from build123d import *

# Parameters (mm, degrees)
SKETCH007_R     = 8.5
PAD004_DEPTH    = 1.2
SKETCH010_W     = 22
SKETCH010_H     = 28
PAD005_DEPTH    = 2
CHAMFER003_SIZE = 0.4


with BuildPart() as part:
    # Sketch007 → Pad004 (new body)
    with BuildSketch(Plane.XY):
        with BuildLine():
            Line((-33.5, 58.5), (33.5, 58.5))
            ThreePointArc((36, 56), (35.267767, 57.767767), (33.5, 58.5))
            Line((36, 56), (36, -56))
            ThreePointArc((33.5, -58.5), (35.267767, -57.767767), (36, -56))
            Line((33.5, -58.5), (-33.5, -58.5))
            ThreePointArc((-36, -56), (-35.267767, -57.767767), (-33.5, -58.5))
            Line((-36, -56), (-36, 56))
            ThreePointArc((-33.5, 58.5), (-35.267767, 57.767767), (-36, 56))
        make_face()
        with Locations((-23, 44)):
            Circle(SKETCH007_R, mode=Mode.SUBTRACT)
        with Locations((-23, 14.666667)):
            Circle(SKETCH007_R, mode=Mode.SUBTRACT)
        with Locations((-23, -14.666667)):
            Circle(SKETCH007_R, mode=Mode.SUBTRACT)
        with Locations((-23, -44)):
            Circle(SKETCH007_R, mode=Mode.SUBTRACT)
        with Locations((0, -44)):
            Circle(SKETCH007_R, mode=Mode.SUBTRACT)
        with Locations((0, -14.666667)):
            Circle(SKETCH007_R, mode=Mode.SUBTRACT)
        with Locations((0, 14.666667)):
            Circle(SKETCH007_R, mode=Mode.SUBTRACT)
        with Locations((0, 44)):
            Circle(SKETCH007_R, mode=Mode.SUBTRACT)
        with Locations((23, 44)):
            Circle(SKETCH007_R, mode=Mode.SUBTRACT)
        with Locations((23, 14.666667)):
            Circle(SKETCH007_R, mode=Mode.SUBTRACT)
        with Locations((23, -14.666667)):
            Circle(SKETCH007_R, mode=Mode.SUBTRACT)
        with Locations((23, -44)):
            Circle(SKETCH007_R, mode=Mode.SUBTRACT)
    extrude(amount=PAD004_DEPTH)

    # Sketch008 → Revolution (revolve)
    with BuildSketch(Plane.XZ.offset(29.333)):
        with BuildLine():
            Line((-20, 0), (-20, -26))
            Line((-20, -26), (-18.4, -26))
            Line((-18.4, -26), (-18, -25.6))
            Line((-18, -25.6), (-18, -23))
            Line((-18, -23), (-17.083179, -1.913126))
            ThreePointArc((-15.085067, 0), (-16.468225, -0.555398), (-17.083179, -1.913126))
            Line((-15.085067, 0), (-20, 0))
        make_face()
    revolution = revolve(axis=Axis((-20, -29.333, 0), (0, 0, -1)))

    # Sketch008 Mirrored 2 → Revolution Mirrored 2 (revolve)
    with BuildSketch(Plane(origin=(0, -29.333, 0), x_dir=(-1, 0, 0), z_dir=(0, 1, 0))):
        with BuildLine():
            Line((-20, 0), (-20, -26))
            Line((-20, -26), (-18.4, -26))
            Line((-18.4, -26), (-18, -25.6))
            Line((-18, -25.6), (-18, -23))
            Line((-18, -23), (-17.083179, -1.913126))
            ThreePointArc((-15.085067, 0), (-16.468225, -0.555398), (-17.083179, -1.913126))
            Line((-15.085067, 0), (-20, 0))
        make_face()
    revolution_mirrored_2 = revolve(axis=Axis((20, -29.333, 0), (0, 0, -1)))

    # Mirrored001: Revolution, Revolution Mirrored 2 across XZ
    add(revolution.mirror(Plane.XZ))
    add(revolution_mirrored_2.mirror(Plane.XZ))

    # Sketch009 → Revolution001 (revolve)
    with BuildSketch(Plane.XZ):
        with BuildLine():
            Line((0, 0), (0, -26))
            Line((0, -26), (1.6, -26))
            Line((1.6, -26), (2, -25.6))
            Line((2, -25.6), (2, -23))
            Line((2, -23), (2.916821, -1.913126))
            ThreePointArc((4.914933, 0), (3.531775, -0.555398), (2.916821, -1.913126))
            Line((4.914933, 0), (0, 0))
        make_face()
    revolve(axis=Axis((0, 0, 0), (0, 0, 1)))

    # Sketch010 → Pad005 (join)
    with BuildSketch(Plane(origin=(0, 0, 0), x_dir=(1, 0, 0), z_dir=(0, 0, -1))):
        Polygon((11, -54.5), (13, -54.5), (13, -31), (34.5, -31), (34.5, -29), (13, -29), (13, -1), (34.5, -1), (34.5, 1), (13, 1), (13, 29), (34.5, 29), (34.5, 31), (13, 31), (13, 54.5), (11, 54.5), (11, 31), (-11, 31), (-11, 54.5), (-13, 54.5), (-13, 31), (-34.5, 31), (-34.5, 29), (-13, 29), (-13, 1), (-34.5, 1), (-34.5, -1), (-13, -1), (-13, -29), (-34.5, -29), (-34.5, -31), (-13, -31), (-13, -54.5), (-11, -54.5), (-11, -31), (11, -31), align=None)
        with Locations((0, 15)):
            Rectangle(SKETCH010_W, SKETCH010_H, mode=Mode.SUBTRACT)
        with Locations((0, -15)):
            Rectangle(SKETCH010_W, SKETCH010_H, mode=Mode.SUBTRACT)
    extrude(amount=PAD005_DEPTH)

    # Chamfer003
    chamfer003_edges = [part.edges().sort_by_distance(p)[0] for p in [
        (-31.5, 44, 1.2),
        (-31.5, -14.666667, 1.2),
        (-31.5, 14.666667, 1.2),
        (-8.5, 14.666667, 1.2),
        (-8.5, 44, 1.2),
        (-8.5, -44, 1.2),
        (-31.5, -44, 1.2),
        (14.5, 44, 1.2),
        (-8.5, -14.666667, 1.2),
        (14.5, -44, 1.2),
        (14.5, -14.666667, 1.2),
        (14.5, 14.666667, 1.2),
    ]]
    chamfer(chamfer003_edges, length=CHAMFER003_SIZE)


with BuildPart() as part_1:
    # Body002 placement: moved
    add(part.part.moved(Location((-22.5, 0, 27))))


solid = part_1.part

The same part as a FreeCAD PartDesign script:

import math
import FreeCAD as App
import Part
import Sketcher

V = App.Vector
Q = App.Units.Quantity


def edges_at(feature, points):
    """Names of the edges that pass closest to the given points."""
    edges = feature.Shape.Edges
    near = lambda p: min(range(len(edges)), key=lambda i: edges[i].distToShape(Part.Vertex(*p))[0])
    return sorted({f"Edge{near(p) + 1}" for p in points})


def add_polygon(sketch, points):
    """Adds a closed chain of lines whose ends are joined by coincident constraints."""
    first, n = sketch.GeometryCount, len(points)
    for a, b in zip(points, points[1:] + points[:1]):
        sketch.addGeometry(Part.LineSegment(App.Vector(*a, 0), App.Vector(*b, 0)), False)
    for i in range(n):
        sketch.addConstraint(Sketcher.Constraint("Coincident", first + i, 2, first + (i + 1) % n, 1))

doc = App.newDocument("Part")
body = doc.addObject("PartDesign::Body", "Body")

sketch1 = body.newObject("Sketcher::SketchObject", "Sketch")
sketch1.AttachmentSupport = (doc.getObject("XY_Plane"), [""])
sketch1.MapMode = "FlatFace"
sketch1.addGeometry(Part.LineSegment(V(33.5, 58.5, 0), V(-33.5, 58.5, 0)), False)
sketch1.addGeometry(Part.ArcOfCircle(Part.Circle(V(-33.5, 56, 0), V(0, 0, 1), 2.5), math.radians(90), math.radians(180)), False)
sketch1.addGeometry(Part.LineSegment(V(-36, 56, 0), V(-36, -56, 0)), False)
sketch1.addGeometry(Part.ArcOfCircle(Part.Circle(V(-33.5, -56, 0), V(0, 0, 1), 2.5), math.radians(180), math.radians(270)), False)
sketch1.addGeometry(Part.LineSegment(V(-33.5, -58.5, 0), V(33.5, -58.5, 0)), False)
sketch1.addGeometry(Part.ArcOfCircle(Part.Circle(V(33.5, -56, 0), V(0, 0, 1), 2.5), math.radians(-90), math.radians(0)), False)
sketch1.addGeometry(Part.LineSegment(V(36, -56, 0), V(36, 56, 0)), False)
sketch1.addGeometry(Part.ArcOfCircle(Part.Circle(V(33.5, 56, 0), V(0, 0, 1), 2.5), math.radians(0), math.radians(90)), False)
sketch1.addGeometry(Part.Circle(V(23, -44, 0), V(0, 0, 1), 8.5), False)
sketch1.addGeometry(Part.Circle(V(23, -14.7, 0), V(0, 0, 1), 8.5), False)
sketch1.addGeometry(Part.Circle(V(0, -44, 0), V(0, 0, 1), 8.5), False)
sketch1.addGeometry(Part.Circle(V(-23, -44, 0), V(0, 0, 1), 8.5), False)
sketch1.addGeometry(Part.Circle(V(0, -14.7, 0), V(0, 0, 1), 8.5), False)
sketch1.addGeometry(Part.Circle(V(-23, -14.7, 0), V(0, 0, 1), 8.5), False)
sketch1.addGeometry(Part.Circle(V(23, 14.7, 0), V(0, 0, 1), 8.5), False)
sketch1.addGeometry(Part.Circle(V(23, 44, 0), V(0, 0, 1), 8.5), False)
sketch1.addGeometry(Part.Circle(V(0, 14.7, 0), V(0, 0, 1), 8.5), False)
sketch1.addGeometry(Part.Circle(V(-23, 14.7, 0), V(0, 0, 1), 8.5), False)
sketch1.addGeometry(Part.Circle(V(0, 44, 0), V(0, 0, 1), 8.5), False)
sketch1.addGeometry(Part.Circle(V(-23, 44, 0), V(0, 0, 1), 8.5), False)
sketch1.addConstraint(Sketcher.Constraint("Tangent", 0, 2, 1, 1))
sketch1.addConstraint(Sketcher.Constraint("Tangent", 1, 2, 2, 1))
sketch1.addConstraint(Sketcher.Constraint("Tangent", 2, 2, 3, 1))
sketch1.addConstraint(Sketcher.Constraint("Tangent", 3, 2, 4, 1))
sketch1.addConstraint(Sketcher.Constraint("Tangent", 4, 2, 5, 1))
sketch1.addConstraint(Sketcher.Constraint("Tangent", 5, 2, 6, 1))
sketch1.addConstraint(Sketcher.Constraint("Tangent", 6, 2, 7, 1))
sketch1.addConstraint(Sketcher.Constraint("Tangent", 7, 2, 0, 1))
sketch1.addConstraint(Sketcher.Constraint("Horizontal", 0))
sketch1.addConstraint(Sketcher.Constraint("Vertical", 2))
sketch1.addConstraint(Sketcher.Constraint("Horizontal", 4))
sketch1.addConstraint(Sketcher.Constraint("Vertical", 6))
sketch1.addConstraint(Sketcher.Constraint("Equal", 1, 3))
sketch1.addConstraint(Sketcher.Constraint("Equal", 3, 5))
sketch1.addConstraint(Sketcher.Constraint("Equal", 5, 7))
sketch1.addConstraint(Sketcher.Constraint("Equal", 8, 9))
sketch1.addConstraint(Sketcher.Constraint("Equal", 9, 10))
sketch1.addConstraint(Sketcher.Constraint("Equal", 10, 11))
sketch1.addConstraint(Sketcher.Constraint("Equal", 11, 12))
sketch1.addConstraint(Sketcher.Constraint("Equal", 12, 13))
sketch1.addConstraint(Sketcher.Constraint("Equal", 13, 14))
sketch1.addConstraint(Sketcher.Constraint("Equal", 14, 15))
sketch1.addConstraint(Sketcher.Constraint("Equal", 15, 16))
sketch1.addConstraint(Sketcher.Constraint("Equal", 16, 17))
sketch1.addConstraint(Sketcher.Constraint("Equal", 17, 18))
sketch1.addConstraint(Sketcher.Constraint("Equal", 18, 19))
sketch1.addConstraint(Sketcher.Constraint("Symmetric", 1, 3, 5, 3, -1, 1))
sketch1.addConstraint(Sketcher.Constraint("Symmetric", 13, 3, 14, 3, -1, 1))
sketch1.addConstraint(Sketcher.Constraint("Symmetric", 11, 3, 15, 3, -1, 1))
sketch1.addConstraint(Sketcher.Constraint("Symmetric", 12, 3, 16, 3, -1, 1))
sketch1.addConstraint(Sketcher.Constraint("Symmetric", 9, 3, 17, 3, -1, 1))
sketch1.addConstraint(Sketcher.Constraint("Symmetric", 10, 3, 18, 3, -1, 1))
sketch1.addConstraint(Sketcher.Constraint("Symmetric", 8, 3, 19, 3, -1, 1))
sketch1.addConstraint(Sketcher.Constraint("Symmetric", 8, 3, 11, 3, -2))
sketch1.addConstraint(Sketcher.Constraint("Symmetric", 9, 3, 13, 3, -2))
sketch1.addConstraint(Sketcher.Constraint("PointOnObject", 10, 3, -2))
sketch1.addConstraint(Sketcher.Constraint("PointOnObject", 12, 3, -2))
sketch1.addConstraint(Sketcher.Constraint("Horizontal", 8, 3, 10, 3))
sketch1.addConstraint(Sketcher.Constraint("Horizontal", 9, 3, 12, 3))
sketch1.addConstraint(Sketcher.Constraint("Vertical", 8, 3, 9, 3))
sketch1.addConstraint(Sketcher.Constraint("Diameter", 8, 17.0))
sketch1.addConstraint(Sketcher.Constraint("Radius", 1, 2.5))
sketch1.addConstraint(Sketcher.Constraint("DistanceX", 0, 2, 0, 1, 67.0))
sketch1.addConstraint(Sketcher.Constraint("DistanceY", 2, 2, 2, 1, 112.0))
sketch1.addConstraint(Sketcher.Constraint("DistanceX", -1, 1, 8, 3, 23.0))
sketch1.addConstraint(Sketcher.Constraint("DistanceY", 8, 3, -1, 1, 44.0))
sketch1.addConstraint(Sketcher.Constraint("DistanceY", 9, 3, -1, 1, 14.666667))
pad1 = body.newObject("PartDesign::Pad", "Pad")
pad1.Profile = sketch1
pad1.Length = 1.2

sketch2 = body.newObject("Sketcher::SketchObject", "Sketch001")
sketch2.AttachmentSupport = (doc.getObject("XZ_Plane"), [""])
sketch2.MapMode = "FlatFace"
sketch2.AttachmentOffset = App.Placement(V(0, 0, 29.333), App.Rotation())
sketch2.addGeometry(Part.LineSegment(V(-20, 0, 0), V(-20, -26, 0)), False)
sketch2.addGeometry(Part.LineSegment(V(-20, -26, 0), V(-18.4, -26, 0)), False)
sketch2.addGeometry(Part.LineSegment(V(-18.4, -26, 0), V(-18, -25.6, 0)), False)
sketch2.addGeometry(Part.LineSegment(V(-18, -25.6, 0), V(-18, -23, 0)), False)
sketch2.addGeometry(Part.LineSegment(V(-18, -23, 0), V(-17.1, -1.9, 0)), False)
sketch2.addGeometry(Part.ArcOfCircle(Part.Circle(V(-15.1, -2, 0), V(0, 0, 1), 2), math.radians(90), math.radians(178)), False)
sketch2.addGeometry(Part.LineSegment(V(-15.1, 0, 0), V(-20, 0, 0)), False)
sketch2.addGeometry(Part.LineSegment(V(-20, 0, 0), V(-20, -26, 0)), True)
sketch2.addConstraint(Sketcher.Constraint("Coincident", 0, 2, 1, 1))
sketch2.addConstraint(Sketcher.Constraint("Coincident", 1, 2, 2, 1))
sketch2.addConstraint(Sketcher.Constraint("Coincident", 2, 2, 3, 1))
sketch2.addConstraint(Sketcher.Constraint("Coincident", 3, 2, 4, 1))
sketch2.addConstraint(Sketcher.Constraint("Tangent", 4, 2, 5, 2))
sketch2.addConstraint(Sketcher.Constraint("Tangent", 5, 1, 6, 1))
sketch2.addConstraint(Sketcher.Constraint("Coincident", 6, 2, 0, 1))
sketch2.addConstraint(Sketcher.Constraint("Vertical", 0))
sketch2.addConstraint(Sketcher.Constraint("Horizontal", 1))
sketch2.addConstraint(Sketcher.Constraint("Vertical", 3))
sketch2.addConstraint(Sketcher.Constraint("Horizontal", 6))
sketch2.addConstraint(Sketcher.Constraint("Vertical", 7))
sketch2.addConstraint(Sketcher.Constraint("Coincident", 7, 1, 6, 2))
sketch2.addConstraint(Sketcher.Constraint("PointOnObject", 5, 1, -1))
sketch2.addConstraint(Sketcher.Constraint("Horizontal", 1, 2, 7, 2))
sketch2.addConstraint(Sketcher.Constraint("Radius", 5, 1.999999))
sketch2.addConstraint(Sketcher.Constraint("DistanceY", 0, 2, 0, 1, 26.0))
sketch2.addConstraint(Sketcher.Constraint("Angle", 2, Q("45 deg")))
sketch2.addConstraint(Sketcher.Constraint("DistanceX", 1, 1, 1, 2, 1.6))
sketch2.addConstraint(Sketcher.Constraint("DistanceY", 3, 1, 3, 2, 2.6))
sketch2.addConstraint(Sketcher.Constraint("DistanceX", 0, 2, -1, 1, 20.0))
sketch2.addConstraint(Sketcher.Constraint("DistanceX", 2, 2, -1, 1, 18.0))
sketch2.addConstraint(Sketcher.Constraint("DistanceX", 6, 2, 6, 1, 4.914933))
revolution = body.newObject("PartDesign::Revolution", "Revolution")
revolution.Profile = sketch2
revolution.ReferenceAxis = (sketch2, ["Axis0"])
revolution.Angle = 360

sketch3 = body.newObject("Sketcher::SketchObject", "Sketch002")
sketch3.AttachmentSupport = (doc.getObject("XZ_Plane"), [""])
sketch3.MapMode = "FlatFace"
sketch3.AttachmentOffset = App.Placement(V(0, 0, 29.333), App.Rotation())
sketch3.addGeometry(Part.LineSegment(V(20, 0, 0), V(20, -26, 0)), False)
sketch3.addGeometry(Part.LineSegment(V(20, -26, 0), V(18.4, -26, 0)), False)
sketch3.addGeometry(Part.LineSegment(V(18.4, -26, 0), V(18, -25.6, 0)), False)
sketch3.addGeometry(Part.LineSegment(V(18, -25.6, 0), V(18, -23, 0)), False)
sketch3.addGeometry(Part.LineSegment(V(18, -23, 0), V(17.1, -1.9, 0)), False)
sketch3.addGeometry(Part.ArcOfCircle(Part.Circle(V(15.1, -2, 0), V(0, 0, 1), 2), math.radians(2), math.radians(90)), False)
sketch3.addGeometry(Part.LineSegment(V(15.1, 0, 0), V(20, 0, 0)), False)
sketch3.addGeometry(Part.LineSegment(V(20, 0, 0), V(20, -26, 0)), True)
sketch3.addConstraint(Sketcher.Constraint("Coincident", 0, 2, 1, 1))
sketch3.addConstraint(Sketcher.Constraint("Coincident", 1, 2, 2, 1))
sketch3.addConstraint(Sketcher.Constraint("Coincident", 2, 2, 3, 1))
sketch3.addConstraint(Sketcher.Constraint("Coincident", 3, 2, 4, 1))
sketch3.addConstraint(Sketcher.Constraint("Tangent", 4, 2, 5, 1))
sketch3.addConstraint(Sketcher.Constraint("Tangent", 5, 2, 6, 1))
sketch3.addConstraint(Sketcher.Constraint("Coincident", 6, 2, 0, 1))
sketch3.addConstraint(Sketcher.Constraint("Vertical", 0))
sketch3.addConstraint(Sketcher.Constraint("Horizontal", 1))
sketch3.addConstraint(Sketcher.Constraint("Vertical", 3))
sketch3.addConstraint(Sketcher.Constraint("Horizontal", 6))
sketch3.addConstraint(Sketcher.Constraint("Vertical", 7))
sketch3.addConstraint(Sketcher.Constraint("Coincident", 7, 1, 6, 2))
sketch3.addConstraint(Sketcher.Constraint("PointOnObject", 5, 2, -1))
sketch3.addConstraint(Sketcher.Constraint("Horizontal", 1, 2, 7, 2))
sketch3.addConstraint(Sketcher.Constraint("Radius", 5, 1.999999))
sketch3.addConstraint(Sketcher.Constraint("DistanceY", 0, 2, 0, 1, 26.0))
sketch3.addConstraint(Sketcher.Constraint("Angle", 2, Q("135 deg")))
sketch3.addConstraint(Sketcher.Constraint("DistanceX", 1, 2, 1, 1, 1.6))
sketch3.addConstraint(Sketcher.Constraint("DistanceY", 3, 1, 3, 2, 2.6))
sketch3.addConstraint(Sketcher.Constraint("DistanceX", -1, 1, 0, 2, 20.0))
sketch3.addConstraint(Sketcher.Constraint("DistanceX", -1, 1, 2, 2, 18.0))
sketch3.addConstraint(Sketcher.Constraint("DistanceX", 6, 1, 6, 2, 4.914933))
revolution2 = body.newObject("PartDesign::Revolution", "Revolution001")
revolution2.Profile = sketch3
revolution2.ReferenceAxis = (sketch3, ["Axis0"])
revolution2.Angle = 360
doc.recompute()

mirrored = body.newObject("PartDesign::Mirrored", "Mirrored")
mirrored.Originals = [revolution, revolution2]
mirrored.MirrorPlane = (doc.getObject("XZ_Plane"), [""])
body.Tip = mirrored

sketch4 = body.newObject("Sketcher::SketchObject", "Sketch003")
sketch4.AttachmentSupport = (doc.getObject("XZ_Plane"), [""])
sketch4.MapMode = "FlatFace"
sketch4.addGeometry(Part.LineSegment(V(0, 0, 0), V(0, -26, 0)), False)
sketch4.addGeometry(Part.LineSegment(V(0, -26, 0), V(1.6, -26, 0)), False)
sketch4.addGeometry(Part.LineSegment(V(1.6, -26, 0), V(2, -25.6, 0)), False)
sketch4.addGeometry(Part.LineSegment(V(2, -25.6, 0), V(2, -23, 0)), False)
sketch4.addGeometry(Part.LineSegment(V(2, -23, 0), V(2.9, -1.9, 0)), False)
sketch4.addGeometry(Part.ArcOfCircle(Part.Circle(V(4.9, -2, 0), V(0, 0, 1), 2), math.radians(90), math.radians(178)), False)
sketch4.addGeometry(Part.LineSegment(V(4.9, 0, 0), V(0, 0, 0)), False)
sketch4.addConstraint(Sketcher.Constraint("Coincident", 0, 2, 1, 1))
sketch4.addConstraint(Sketcher.Constraint("Coincident", 1, 2, 2, 1))
sketch4.addConstraint(Sketcher.Constraint("Coincident", 2, 2, 3, 1))
sketch4.addConstraint(Sketcher.Constraint("Coincident", 3, 2, 4, 1))
sketch4.addConstraint(Sketcher.Constraint("Tangent", 4, 2, 5, 2))
sketch4.addConstraint(Sketcher.Constraint("Tangent", 5, 1, 6, 1))
sketch4.addConstraint(Sketcher.Constraint("Coincident", 6, 2, 0, 1))
sketch4.addConstraint(Sketcher.Constraint("Vertical", 0))
sketch4.addConstraint(Sketcher.Constraint("Horizontal", 1))
sketch4.addConstraint(Sketcher.Constraint("Vertical", 3))
sketch4.addConstraint(Sketcher.Constraint("Horizontal", 6))
sketch4.addConstraint(Sketcher.Constraint("Coincident", 6, 2, -1, 1))
sketch4.addConstraint(Sketcher.Constraint("Radius", 5, 1.999999))
sketch4.addConstraint(Sketcher.Constraint("DistanceY", 0, 2, 0, 1, 26.0))
sketch4.addConstraint(Sketcher.Constraint("Angle", 2, Q("45 deg")))
sketch4.addConstraint(Sketcher.Constraint("DistanceX", 1, 1, 1, 2, 1.6))
sketch4.addConstraint(Sketcher.Constraint("DistanceY", 3, 1, 3, 2, 2.6))
sketch4.addConstraint(Sketcher.Constraint("DistanceX", -1, 1, 2, 2, 2.0))
sketch4.addConstraint(Sketcher.Constraint("DistanceX", 6, 2, 6, 1, 4.914933))
revolution3 = body.newObject("PartDesign::Revolution", "Revolution002")
revolution3.Profile = sketch4
revolution3.ReferenceAxis = (sketch4, ["V_Axis"])
revolution3.Angle = 360

sketch5 = body.newObject("Sketcher::SketchObject", "Sketch004")
sketch5.AttachmentSupport = (doc.getObject("XY_Plane"), [""])
sketch5.MapMode = "FlatFace"
add_polygon(sketch5, [(11, 54.5), (13, 54.5), (13, 31), (34.5, 31), (34.5, 29), (13, 29), (13, 1), (34.5, 1), (34.5, -1), (13, -1), (13, -29), (34.5, -29), (34.5, -31), (13, -31), (13, -54.5), (11, -54.5), (11, -31), (-11, -31), (-11, -54.5), (-13, -54.5), (-13, -31), (-34.5, -31), (-34.5, -29), (-13, -29), (-13, -1), (-34.5, -1), (-34.5, 1), (-13, 1), (-13, 29), (-34.5, 29), (-34.5, 31), (-13, 31), (-13, 54.5), (-11, 54.5), (-11, 31), (11, 31)])
add_polygon(sketch5, [(11, 29), (-11, 29), (-11, 1), (11, 1)])
add_polygon(sketch5, [(11, -1), (-11, -1), (-11, -29), (11, -29)])
sketch5.addConstraint(Sketcher.Constraint("Horizontal", 0))
sketch5.addConstraint(Sketcher.Constraint("Vertical", 1))
sketch5.addConstraint(Sketcher.Constraint("Horizontal", 2))
sketch5.addConstraint(Sketcher.Constraint("Vertical", 3))
sketch5.addConstraint(Sketcher.Constraint("Horizontal", 4))
sketch5.addConstraint(Sketcher.Constraint("Vertical", 5))
sketch5.addConstraint(Sketcher.Constraint("Horizontal", 6))
sketch5.addConstraint(Sketcher.Constraint("Vertical", 7))
sketch5.addConstraint(Sketcher.Constraint("Horizontal", 8))
sketch5.addConstraint(Sketcher.Constraint("Vertical", 9))
sketch5.addConstraint(Sketcher.Constraint("Horizontal", 10))
sketch5.addConstraint(Sketcher.Constraint("Vertical", 11))
sketch5.addConstraint(Sketcher.Constraint("Horizontal", 12))
sketch5.addConstraint(Sketcher.Constraint("Vertical", 13))
sketch5.addConstraint(Sketcher.Constraint("Horizontal", 14))
sketch5.addConstraint(Sketcher.Constraint("Vertical", 15))
sketch5.addConstraint(Sketcher.Constraint("Horizontal", 16))
sketch5.addConstraint(Sketcher.Constraint("Vertical", 17))
sketch5.addConstraint(Sketcher.Constraint("Horizontal", 18))
sketch5.addConstraint(Sketcher.Constraint("Vertical", 19))
sketch5.addConstraint(Sketcher.Constraint("Horizontal", 20))
sketch5.addConstraint(Sketcher.Constraint("Vertical", 21))
sketch5.addConstraint(Sketcher.Constraint("Horizontal", 22))
sketch5.addConstraint(Sketcher.Constraint("Vertical", 23))
sketch5.addConstraint(Sketcher.Constraint("Horizontal", 24))
sketch5.addConstraint(Sketcher.Constraint("Vertical", 25))
sketch5.addConstraint(Sketcher.Constraint("Horizontal", 26))
sketch5.addConstraint(Sketcher.Constraint("Vertical", 27))
sketch5.addConstraint(Sketcher.Constraint("Horizontal", 28))
sketch5.addConstraint(Sketcher.Constraint("Vertical", 29))
sketch5.addConstraint(Sketcher.Constraint("Horizontal", 30))
sketch5.addConstraint(Sketcher.Constraint("Vertical", 31))
sketch5.addConstraint(Sketcher.Constraint("Horizontal", 32))
sketch5.addConstraint(Sketcher.Constraint("Vertical", 33))
sketch5.addConstraint(Sketcher.Constraint("Horizontal", 34))
sketch5.addConstraint(Sketcher.Constraint("Vertical", 35))
sketch5.addConstraint(Sketcher.Constraint("Horizontal", 36))
sketch5.addConstraint(Sketcher.Constraint("Vertical", 37))
sketch5.addConstraint(Sketcher.Constraint("Horizontal", 38))
sketch5.addConstraint(Sketcher.Constraint("Vertical", 39))
sketch5.addConstraint(Sketcher.Constraint("Horizontal", 40))
sketch5.addConstraint(Sketcher.Constraint("Vertical", 41))
sketch5.addConstraint(Sketcher.Constraint("Horizontal", 42))
sketch5.addConstraint(Sketcher.Constraint("Vertical", 43))
sketch5.addConstraint(Sketcher.Constraint("Symmetric", 0, 2, 18, 2, -1, 1))
sketch5.addConstraint(Sketcher.Constraint("Symmetric", 2, 2, 20, 2, -1, 1))
sketch5.addConstraint(Sketcher.Constraint("Symmetric", 4, 2, 22, 2, -1, 1))
sketch5.addConstraint(Sketcher.Constraint("Symmetric", 6, 2, 24, 2, -1, 1))
sketch5.addConstraint(Sketcher.Constraint("Symmetric", 8, 2, 26, 2, -1, 1))
sketch5.addConstraint(Sketcher.Constraint("Symmetric", 10, 2, 28, 2, -1, 1))
sketch5.addConstraint(Sketcher.Constraint("Symmetric", 12, 2, 30, 2, -1, 1))
sketch5.addConstraint(Sketcher.Constraint("Symmetric", 14, 2, 32, 2, -1, 1))
sketch5.addConstraint(Sketcher.Constraint("Symmetric", 16, 2, 34, 2, -1, 1))
sketch5.addConstraint(Sketcher.Constraint("Symmetric", 38, 2, 40, 2, -1, 1))
sketch5.addConstraint(Sketcher.Constraint("Symmetric", 36, 2, 42, 2, -1, 1))
sketch5.addConstraint(Sketcher.Constraint("Symmetric", 14, 2, 17, 2, -2))
sketch5.addConstraint(Sketcher.Constraint("Symmetric", 12, 2, 19, 2, -2))
sketch5.addConstraint(Sketcher.Constraint("Symmetric", 10, 2, 21, 2, -2))
sketch5.addConstraint(Sketcher.Constraint("Symmetric", 8, 2, 23, 2, -2))
sketch5.addConstraint(Sketcher.Constraint("Horizontal", 12, 2, 15, 2))
sketch5.addConstraint(Sketcher.Constraint("Horizontal", 28, 2, 36, 2))
sketch5.addConstraint(Sketcher.Constraint("Horizontal", 26, 2, 37, 2))
sketch5.addConstraint(Sketcher.Constraint("Vertical", 1, 2, 4, 2))
sketch5.addConstraint(Sketcher.Constraint("Vertical", 3, 2, 6, 2))
sketch5.addConstraint(Sketcher.Constraint("Vertical", 33, 2, 36, 2))
sketch5.addConstraint(Sketcher.Constraint("Vertical", 35, 2, 38, 2))
sketch5.addConstraint(Sketcher.Constraint("Equal", 32, 3))
sketch5.addConstraint(Sketcher.Constraint("Equal", 3, 7))
sketch5.addConstraint(Sketcher.Constraint("DistanceX", 0, 1, 0, 2, 2.0))
sketch5.addConstraint(Sketcher.Constraint("DistanceX", 16, 2, 16, 1, 22.0))
sketch5.addConstraint(Sketcher.Constraint("DistanceY", 5, 2, 5, 1, 28.0))
sketch5.addConstraint(Sketcher.Constraint("DistanceX", 2, 1, 2, 2, 21.5))
sketch5.addConstraint(Sketcher.Constraint("DistanceY", 1, 2, 1, 1, 23.5))
pad2 = body.newObject("PartDesign::Pad", "Pad001")
pad2.Profile = sketch5
pad2.Length = 2
pad2.Reversed = True
doc.recompute()

chamfer = body.newObject("PartDesign::Chamfer", "Chamfer")
chamfer.Base = (pad2, edges_at(pad2, [
    (-31.5, 44, 1.2),
    (-31.5, -14.667, 1.2),
    (-31.5, 14.667, 1.2),
    (-8.5, 14.667, 1.2),
    (-8.5, 44, 1.2),
    (-8.5, -44, 1.2),
    (-31.5, -44, 1.2),
    (14.5, 44, 1.2),
    (-8.5, -14.667, 1.2),
    (14.5, -44, 1.2),
    (14.5, -14.667, 1.2),
    (14.5, 14.667, 1.2),
]))
chamfer.Size = 0.4
body2 = doc.addObject("PartDesign::Body", "Body001")
doc.recompute()

body.Placement = App.Placement(V(-22.5, 0, 27), App.Rotation(V(0, 0, 1), 0))
boolean = body2.newObject("PartDesign::Boolean", "Boolean")
boolean.Type = "Fuse"
boolean.addObjects([body])

doc.recompute()
